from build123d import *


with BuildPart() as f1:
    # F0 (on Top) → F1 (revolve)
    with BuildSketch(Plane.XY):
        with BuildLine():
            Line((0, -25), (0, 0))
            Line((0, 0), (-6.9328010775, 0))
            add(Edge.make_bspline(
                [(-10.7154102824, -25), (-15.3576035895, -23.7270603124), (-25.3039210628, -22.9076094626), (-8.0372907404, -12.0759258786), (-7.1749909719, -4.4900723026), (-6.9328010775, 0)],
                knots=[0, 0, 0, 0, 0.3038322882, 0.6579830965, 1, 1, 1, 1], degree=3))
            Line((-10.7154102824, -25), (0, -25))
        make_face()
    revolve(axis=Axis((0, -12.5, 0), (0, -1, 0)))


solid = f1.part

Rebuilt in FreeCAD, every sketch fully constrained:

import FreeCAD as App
import Part
import Sketcher

V = App.Vector

doc = App.newDocument("Part")
body = doc.addObject("PartDesign::Body", "Body")

sketch1 = body.newObject("Sketcher::SketchObject", "Sketch")
sketch1.AttachmentSupport = (doc.getObject("XY_Plane"), [""])
sketch1.MapMode = "FlatFace"
sketch1.addGeometry([
    Part.LineSegment(V(0, -25, 0), V(0, 0, 0)),
    Part.LineSegment(V(0, 0, 0), V(-6.932801, 0, 0)),
    Part.BSplineCurve([V(-10.71541, -25, 0), V(-15.357604, -23.72706, 0), V(-25.303921, -22.907609, 0), V(-8.037291, -12.075926, 0), V(-7.174991, -4.490072, 0), V(-6.932801, 0, 0)], [4, 1, 1, 4], [0, 0.303832288, 0.657983096, 1], False, 3, [1, 1, 1, 1, 1, 1], False),
    Part.LineSegment(V(-10.71541, -25, 0), V(0, -25, 0)),
], False)
sketch1.addConstraint([
    Sketcher.Constraint("Block", 2),
    Sketcher.Constraint("Coincident", 0, 2, 1, 1),
    Sketcher.Constraint("Coincident", 1, 2, 2, 2),
    Sketcher.Constraint("Coincident", 2, 1, 3, 1),
    Sketcher.Constraint("Coincident", 3, 2, 0, 1),
    Sketcher.Constraint("Vertical", 0),
    Sketcher.Constraint("Horizontal", 1),
    Sketcher.Constraint("Horizontal", 3),
    Sketcher.Constraint("PointOnObject", 3, 2, -2),
])
revolution = body.newObject("PartDesign::Revolution", "Revolution")
revolution.Profile = sketch1
revolution.ReferenceAxis = (sketch1, ["V_Axis"])
revolution.Angle = 360

doc.recompute()
